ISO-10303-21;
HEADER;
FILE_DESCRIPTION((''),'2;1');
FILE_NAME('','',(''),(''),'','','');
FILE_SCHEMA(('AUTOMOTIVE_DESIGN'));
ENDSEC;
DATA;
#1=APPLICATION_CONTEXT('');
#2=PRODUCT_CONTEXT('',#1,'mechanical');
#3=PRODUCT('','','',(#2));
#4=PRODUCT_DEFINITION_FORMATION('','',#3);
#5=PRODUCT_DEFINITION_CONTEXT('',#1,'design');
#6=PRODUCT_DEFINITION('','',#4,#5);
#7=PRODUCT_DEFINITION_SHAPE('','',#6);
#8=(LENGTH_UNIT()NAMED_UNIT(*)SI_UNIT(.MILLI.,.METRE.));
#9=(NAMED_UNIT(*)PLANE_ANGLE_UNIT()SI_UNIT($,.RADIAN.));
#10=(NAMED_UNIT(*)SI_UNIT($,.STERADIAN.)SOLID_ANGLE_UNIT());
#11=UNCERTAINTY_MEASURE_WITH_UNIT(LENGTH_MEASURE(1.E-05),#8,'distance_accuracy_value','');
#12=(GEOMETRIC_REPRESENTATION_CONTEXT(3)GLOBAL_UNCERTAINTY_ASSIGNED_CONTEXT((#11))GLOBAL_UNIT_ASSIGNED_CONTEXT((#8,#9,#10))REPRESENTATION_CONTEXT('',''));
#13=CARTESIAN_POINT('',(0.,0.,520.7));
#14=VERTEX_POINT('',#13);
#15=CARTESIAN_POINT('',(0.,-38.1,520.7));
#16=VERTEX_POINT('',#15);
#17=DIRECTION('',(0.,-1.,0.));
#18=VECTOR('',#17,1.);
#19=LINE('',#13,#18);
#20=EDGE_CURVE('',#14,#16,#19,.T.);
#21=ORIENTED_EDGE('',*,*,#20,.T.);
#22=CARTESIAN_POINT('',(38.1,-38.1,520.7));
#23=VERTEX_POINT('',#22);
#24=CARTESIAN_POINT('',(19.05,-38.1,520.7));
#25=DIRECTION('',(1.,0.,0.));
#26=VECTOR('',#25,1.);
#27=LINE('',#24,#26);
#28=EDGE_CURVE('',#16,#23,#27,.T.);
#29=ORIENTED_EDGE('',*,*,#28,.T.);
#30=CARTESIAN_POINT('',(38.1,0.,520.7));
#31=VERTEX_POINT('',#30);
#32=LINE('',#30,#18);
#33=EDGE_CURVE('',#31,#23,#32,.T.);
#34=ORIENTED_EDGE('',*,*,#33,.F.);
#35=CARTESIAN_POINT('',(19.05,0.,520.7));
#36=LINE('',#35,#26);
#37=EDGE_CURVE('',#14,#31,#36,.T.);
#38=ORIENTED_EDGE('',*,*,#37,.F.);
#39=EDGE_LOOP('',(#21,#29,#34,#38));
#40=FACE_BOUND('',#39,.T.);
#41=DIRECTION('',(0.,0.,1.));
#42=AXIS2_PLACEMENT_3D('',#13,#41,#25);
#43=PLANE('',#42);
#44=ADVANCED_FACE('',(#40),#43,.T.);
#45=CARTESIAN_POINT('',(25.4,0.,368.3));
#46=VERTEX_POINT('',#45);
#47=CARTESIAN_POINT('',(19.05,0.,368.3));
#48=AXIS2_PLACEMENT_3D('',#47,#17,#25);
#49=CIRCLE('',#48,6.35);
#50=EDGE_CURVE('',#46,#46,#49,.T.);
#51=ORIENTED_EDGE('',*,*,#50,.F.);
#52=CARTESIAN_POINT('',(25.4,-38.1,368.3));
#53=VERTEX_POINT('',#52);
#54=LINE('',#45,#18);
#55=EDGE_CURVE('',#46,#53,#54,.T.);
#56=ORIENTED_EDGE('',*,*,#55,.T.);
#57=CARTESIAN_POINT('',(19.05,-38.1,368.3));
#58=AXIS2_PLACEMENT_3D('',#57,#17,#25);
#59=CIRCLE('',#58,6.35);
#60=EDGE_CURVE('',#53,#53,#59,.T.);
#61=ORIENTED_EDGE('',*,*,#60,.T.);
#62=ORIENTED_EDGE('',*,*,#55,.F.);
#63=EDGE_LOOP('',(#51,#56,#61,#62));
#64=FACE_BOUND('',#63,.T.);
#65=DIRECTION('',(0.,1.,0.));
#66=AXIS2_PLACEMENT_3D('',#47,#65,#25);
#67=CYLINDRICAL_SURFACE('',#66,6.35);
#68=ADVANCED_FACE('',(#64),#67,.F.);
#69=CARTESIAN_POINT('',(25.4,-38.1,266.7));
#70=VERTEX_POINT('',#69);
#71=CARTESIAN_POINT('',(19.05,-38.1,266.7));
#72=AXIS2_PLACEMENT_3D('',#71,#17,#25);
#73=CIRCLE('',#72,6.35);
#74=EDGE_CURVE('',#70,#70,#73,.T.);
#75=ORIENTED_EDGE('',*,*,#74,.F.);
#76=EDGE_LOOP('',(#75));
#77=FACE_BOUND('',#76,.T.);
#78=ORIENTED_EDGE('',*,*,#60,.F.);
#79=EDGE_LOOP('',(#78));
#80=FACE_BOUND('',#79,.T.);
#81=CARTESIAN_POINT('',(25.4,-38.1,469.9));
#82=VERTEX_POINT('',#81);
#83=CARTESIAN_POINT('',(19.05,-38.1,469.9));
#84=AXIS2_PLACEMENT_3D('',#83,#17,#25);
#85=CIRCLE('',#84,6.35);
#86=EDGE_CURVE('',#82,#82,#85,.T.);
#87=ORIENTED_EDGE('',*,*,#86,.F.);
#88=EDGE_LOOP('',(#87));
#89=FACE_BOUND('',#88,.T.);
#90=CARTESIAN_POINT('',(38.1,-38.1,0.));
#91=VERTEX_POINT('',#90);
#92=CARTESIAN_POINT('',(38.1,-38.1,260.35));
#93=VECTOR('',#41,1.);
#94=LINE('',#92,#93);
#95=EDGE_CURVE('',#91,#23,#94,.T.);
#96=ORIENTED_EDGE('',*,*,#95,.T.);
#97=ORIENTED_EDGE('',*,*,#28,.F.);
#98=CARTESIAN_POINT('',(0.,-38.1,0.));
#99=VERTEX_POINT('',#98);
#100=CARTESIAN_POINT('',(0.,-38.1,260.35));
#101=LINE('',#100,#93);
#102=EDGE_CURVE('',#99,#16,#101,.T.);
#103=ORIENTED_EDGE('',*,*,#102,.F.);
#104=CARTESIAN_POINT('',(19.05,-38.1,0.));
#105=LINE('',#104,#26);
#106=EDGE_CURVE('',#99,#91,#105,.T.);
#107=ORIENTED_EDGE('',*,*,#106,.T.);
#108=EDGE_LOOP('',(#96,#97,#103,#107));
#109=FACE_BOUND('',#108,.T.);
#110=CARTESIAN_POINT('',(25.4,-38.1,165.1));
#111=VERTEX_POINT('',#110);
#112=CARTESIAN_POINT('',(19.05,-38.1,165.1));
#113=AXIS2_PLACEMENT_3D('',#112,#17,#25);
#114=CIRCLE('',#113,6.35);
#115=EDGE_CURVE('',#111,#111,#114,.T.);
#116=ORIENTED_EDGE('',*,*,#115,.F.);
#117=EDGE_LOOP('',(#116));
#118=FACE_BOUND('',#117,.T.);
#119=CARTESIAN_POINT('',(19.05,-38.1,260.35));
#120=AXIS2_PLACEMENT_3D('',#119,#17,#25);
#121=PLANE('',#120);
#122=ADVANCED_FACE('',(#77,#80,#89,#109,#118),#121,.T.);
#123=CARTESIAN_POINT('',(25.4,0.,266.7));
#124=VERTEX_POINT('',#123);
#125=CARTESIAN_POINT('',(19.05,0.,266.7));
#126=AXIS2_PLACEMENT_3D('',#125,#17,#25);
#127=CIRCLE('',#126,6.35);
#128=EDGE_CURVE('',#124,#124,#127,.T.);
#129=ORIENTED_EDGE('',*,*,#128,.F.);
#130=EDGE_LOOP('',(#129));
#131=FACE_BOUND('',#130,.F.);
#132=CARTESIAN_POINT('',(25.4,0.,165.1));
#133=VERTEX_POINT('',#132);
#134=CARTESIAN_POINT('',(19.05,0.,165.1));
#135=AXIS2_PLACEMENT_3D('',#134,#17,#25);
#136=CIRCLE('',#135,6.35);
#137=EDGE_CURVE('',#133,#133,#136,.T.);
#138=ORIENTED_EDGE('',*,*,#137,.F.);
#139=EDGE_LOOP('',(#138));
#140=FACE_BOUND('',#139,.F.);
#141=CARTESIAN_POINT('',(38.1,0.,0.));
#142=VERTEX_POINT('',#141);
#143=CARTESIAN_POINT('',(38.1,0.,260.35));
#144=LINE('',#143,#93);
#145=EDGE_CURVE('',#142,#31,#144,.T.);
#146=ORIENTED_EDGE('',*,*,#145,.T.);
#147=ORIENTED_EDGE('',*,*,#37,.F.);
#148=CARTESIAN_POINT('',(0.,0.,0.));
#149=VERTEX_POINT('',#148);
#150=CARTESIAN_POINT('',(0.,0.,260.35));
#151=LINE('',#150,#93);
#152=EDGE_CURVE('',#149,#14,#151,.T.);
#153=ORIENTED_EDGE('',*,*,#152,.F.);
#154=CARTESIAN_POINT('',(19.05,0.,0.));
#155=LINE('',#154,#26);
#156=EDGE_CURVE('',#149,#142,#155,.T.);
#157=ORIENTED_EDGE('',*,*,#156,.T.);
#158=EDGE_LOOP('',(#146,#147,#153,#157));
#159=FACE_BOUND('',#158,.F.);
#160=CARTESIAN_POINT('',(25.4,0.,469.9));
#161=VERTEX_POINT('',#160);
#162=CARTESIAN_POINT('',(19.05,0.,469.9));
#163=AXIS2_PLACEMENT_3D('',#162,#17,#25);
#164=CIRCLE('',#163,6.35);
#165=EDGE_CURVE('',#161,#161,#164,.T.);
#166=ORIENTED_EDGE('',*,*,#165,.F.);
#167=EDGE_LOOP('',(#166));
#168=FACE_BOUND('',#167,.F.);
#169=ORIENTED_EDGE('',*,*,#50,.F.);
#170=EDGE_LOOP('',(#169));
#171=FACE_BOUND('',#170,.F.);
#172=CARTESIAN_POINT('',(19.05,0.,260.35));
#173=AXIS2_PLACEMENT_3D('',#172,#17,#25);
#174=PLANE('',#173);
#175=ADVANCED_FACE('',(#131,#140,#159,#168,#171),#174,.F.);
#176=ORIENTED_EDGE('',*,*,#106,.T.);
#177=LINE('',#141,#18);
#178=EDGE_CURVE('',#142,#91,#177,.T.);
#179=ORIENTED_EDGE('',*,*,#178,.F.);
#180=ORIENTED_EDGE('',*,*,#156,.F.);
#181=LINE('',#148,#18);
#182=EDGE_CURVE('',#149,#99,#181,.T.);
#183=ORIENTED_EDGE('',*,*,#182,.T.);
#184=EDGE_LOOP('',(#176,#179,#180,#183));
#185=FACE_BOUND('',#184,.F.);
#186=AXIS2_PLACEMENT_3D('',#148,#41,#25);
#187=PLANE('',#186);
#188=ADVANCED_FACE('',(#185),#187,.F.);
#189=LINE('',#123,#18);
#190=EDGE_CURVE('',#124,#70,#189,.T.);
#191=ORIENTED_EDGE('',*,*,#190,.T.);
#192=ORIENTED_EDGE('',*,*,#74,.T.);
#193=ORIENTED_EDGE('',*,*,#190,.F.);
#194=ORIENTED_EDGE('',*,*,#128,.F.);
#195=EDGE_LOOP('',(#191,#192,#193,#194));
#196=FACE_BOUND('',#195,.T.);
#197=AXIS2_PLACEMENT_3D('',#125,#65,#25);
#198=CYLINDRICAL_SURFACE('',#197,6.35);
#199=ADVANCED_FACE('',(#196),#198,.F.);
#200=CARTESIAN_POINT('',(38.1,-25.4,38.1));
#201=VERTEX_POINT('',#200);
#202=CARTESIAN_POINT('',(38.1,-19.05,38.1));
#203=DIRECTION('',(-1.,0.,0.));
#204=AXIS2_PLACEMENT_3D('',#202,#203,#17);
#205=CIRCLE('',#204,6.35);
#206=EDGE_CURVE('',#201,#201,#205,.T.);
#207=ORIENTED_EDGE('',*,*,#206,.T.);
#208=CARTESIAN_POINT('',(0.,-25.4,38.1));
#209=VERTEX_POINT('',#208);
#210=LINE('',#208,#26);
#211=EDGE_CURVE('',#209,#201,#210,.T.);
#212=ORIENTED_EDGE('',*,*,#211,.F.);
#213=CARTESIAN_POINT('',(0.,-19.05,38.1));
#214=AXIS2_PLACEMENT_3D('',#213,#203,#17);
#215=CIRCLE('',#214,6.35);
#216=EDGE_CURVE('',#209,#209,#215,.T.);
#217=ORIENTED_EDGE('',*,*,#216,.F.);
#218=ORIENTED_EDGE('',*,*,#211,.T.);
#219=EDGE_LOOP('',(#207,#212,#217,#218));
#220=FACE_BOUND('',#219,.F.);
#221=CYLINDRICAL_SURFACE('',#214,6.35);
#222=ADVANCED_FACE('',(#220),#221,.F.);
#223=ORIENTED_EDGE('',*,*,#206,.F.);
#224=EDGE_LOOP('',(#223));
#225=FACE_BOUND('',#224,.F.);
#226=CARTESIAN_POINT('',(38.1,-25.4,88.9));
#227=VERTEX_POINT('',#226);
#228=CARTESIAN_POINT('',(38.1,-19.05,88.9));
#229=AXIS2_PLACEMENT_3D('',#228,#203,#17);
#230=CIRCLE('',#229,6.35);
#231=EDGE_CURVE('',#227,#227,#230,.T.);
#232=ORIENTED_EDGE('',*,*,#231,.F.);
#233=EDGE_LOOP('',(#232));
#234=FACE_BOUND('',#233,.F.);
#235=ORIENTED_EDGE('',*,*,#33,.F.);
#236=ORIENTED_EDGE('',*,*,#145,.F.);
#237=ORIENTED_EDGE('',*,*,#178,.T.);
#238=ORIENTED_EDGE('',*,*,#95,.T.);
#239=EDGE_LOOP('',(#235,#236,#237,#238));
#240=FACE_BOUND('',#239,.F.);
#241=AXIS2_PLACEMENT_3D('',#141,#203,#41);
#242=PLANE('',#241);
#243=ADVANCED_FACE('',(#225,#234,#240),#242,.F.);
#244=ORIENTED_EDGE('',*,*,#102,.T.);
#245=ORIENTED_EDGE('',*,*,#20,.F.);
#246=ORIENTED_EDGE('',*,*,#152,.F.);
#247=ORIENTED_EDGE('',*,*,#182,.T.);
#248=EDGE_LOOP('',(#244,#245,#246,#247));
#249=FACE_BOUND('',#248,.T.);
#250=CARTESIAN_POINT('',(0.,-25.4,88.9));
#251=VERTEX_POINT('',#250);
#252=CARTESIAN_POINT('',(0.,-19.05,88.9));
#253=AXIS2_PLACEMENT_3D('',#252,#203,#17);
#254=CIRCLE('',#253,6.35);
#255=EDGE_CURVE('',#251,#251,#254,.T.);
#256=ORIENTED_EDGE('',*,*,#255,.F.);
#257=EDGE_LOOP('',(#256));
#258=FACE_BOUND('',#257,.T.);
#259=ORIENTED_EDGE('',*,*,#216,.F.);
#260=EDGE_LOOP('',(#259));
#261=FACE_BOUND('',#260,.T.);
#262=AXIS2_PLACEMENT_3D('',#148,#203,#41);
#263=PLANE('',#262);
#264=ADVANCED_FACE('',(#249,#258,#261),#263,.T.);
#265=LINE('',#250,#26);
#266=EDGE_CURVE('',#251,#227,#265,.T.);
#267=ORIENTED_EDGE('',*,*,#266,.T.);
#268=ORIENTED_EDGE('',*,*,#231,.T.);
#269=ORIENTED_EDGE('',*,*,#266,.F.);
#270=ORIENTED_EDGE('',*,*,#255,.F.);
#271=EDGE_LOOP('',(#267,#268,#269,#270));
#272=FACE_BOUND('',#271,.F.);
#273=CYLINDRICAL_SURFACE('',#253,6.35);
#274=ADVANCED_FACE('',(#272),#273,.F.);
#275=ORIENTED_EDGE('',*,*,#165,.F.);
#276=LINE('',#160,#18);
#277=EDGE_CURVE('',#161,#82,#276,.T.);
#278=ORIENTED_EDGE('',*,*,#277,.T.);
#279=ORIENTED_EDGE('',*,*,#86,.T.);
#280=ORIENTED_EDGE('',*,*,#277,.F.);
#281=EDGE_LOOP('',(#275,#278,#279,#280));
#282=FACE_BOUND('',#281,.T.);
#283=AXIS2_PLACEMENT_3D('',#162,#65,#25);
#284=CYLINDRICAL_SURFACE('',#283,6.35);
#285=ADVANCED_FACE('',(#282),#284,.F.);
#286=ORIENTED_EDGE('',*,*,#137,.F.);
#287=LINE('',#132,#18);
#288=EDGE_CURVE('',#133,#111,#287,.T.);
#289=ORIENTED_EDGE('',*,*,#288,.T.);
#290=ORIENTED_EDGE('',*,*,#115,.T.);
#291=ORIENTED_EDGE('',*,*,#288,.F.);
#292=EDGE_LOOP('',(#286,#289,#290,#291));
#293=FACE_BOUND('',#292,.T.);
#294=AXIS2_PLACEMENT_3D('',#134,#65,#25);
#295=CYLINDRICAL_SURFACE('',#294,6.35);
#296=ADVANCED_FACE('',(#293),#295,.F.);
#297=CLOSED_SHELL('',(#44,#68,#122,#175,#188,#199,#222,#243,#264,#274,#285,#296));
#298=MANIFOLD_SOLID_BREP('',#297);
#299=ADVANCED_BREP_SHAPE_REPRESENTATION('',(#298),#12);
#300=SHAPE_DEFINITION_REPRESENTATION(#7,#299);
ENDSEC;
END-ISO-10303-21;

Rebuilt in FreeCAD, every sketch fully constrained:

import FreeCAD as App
import Part
import Sketcher

V = App.Vector
Q = App.Units.Quantity


def add_polygon(sketch, points):
    """Adds a closed chain of lines whose ends are joined by coincident constraints."""
    first, n = sketch.GeometryCount, len(points)
    for a, b in zip(points, points[1:] + points[:1]):
        sketch.addGeometry(Part.LineSegment(App.Vector(*a, 0), App.Vector(*b, 0)), False)
    for i in range(n):
        sketch.addConstraint(Sketcher.Constraint("Coincident", first + i, 2, first + (i + 1) % n, 1))

doc = App.newDocument("Part")
body = doc.addObject("PartDesign::Body", "Body")

# Sketch on XZ plane
sketch1 = body.newObject("Sketcher::SketchObject", "Sketch")
sketch1.AttachmentSupport = (doc.getObject("XZ_Plane"), [""])
sketch1.MapMode = "FlatFace"
add_polygon(sketch1, [(0, 521), (0, 0), (38, 0), (38, 521)])  # lines 0-3
sketch1.addGeometry(Part.Circle(V(19, 165, 0), V(0, 0, 1), 6), False)  # 4
sketch1.addGeometry(Part.Circle(V(19, 267, 0), V(0, 0, 1), 6), False)  # 5
sketch1.addGeometry(Part.Circle(V(19, 368, 0), V(0, 0, 1), 6), False)  # 6
sketch1.addGeometry(Part.Circle(V(19, 470, 0), V(0, 0, 1), 6), False)  # 7
sketch1.addConstraint([
    Sketcher.Constraint("Vertical", 0),
    Sketcher.Constraint("Horizontal", 1),
    Sketcher.Constraint("Vertical", 2),
    Sketcher.Constraint("Horizontal", 3),
    Sketcher.Constraint("Coincident", 0, 2, -1, 1),
    Sketcher.Constraint("Equal", 4, 5),
    Sketcher.Constraint("Equal", 5, 6),
    Sketcher.Constraint("Equal", 6, 7),
    Sketcher.Constraint("Vertical", 4, 3, 5, 3),
    Sketcher.Constraint("Vertical", 5, 3, 6, 3),
    Sketcher.Constraint("Vertical", 6, 3, 7, 3),
    Sketcher.Constraint("Diameter", 4, Q("0.5 in")),
    Sketcher.Constraint("DistanceX", 1, 1, 1, 2, Q("1.5 in")),
    Sketcher.Constraint("DistanceY", 0, 2, 0, 1, Q("20.5 in")),
    Sketcher.Constraint("DistanceY", 4, 3, 5, 3, Q("4 in")),
    Sketcher.Constraint("DistanceY", 5, 3, 6, 3, Q("4 in")),
    Sketcher.Constraint("DistanceY", 6, 3, 7, 3, Q("4 in")),
    Sketcher.Constraint("DistanceY", 7, 3, 2, 2, Q("2 in")),
    Sketcher.Constraint("DistanceX", -1, 1, 4, 3, Q("0.75 in")),
])
pad1 = body.newObject("PartDesign::Pad", "Pad")
pad1.Profile = sketch1
pad1.Length = Q("1.5 in")

# Sketch on YZ plane
sketch2 = body.newObject("Sketcher::SketchObject", "Sketch001")
sketch2.AttachmentSupport = (doc.getObject("YZ_Plane"), [""])
sketch2.MapMode = "FlatFace"
sketch2.addGeometry([
    Part.Circle(V(-19, 38, 0), V(0, 0, 1), 6),
    Part.Circle(V(-19, 89, 0), V(0, 0, 1), 6),
], False)
sketch2.addConstraint([
    Sketcher.Constraint("Equal", 0, 1),
    Sketcher.Constraint("Vertical", 0, 3, 1, 3),
    Sketcher.Constraint("Diameter", 0, Q("0.5 in")),
    Sketcher.Constraint("DistanceY", 0, 3, 1, 3, Q("2 in")),
    Sketcher.Constraint("DistanceY", -1, 1, 0, 3, Q("1.5 in")),
    Sketcher.Constraint("DistanceX", 0, 3, -1, 1, Q("0.75 in")),
])
pocket1 = body.newObject("PartDesign::Pocket", "Pocket")
pocket1.Profile = sketch2
pocket1.Type = "ThroughAll"
pocket1.Reversed = True

doc.recompute()
